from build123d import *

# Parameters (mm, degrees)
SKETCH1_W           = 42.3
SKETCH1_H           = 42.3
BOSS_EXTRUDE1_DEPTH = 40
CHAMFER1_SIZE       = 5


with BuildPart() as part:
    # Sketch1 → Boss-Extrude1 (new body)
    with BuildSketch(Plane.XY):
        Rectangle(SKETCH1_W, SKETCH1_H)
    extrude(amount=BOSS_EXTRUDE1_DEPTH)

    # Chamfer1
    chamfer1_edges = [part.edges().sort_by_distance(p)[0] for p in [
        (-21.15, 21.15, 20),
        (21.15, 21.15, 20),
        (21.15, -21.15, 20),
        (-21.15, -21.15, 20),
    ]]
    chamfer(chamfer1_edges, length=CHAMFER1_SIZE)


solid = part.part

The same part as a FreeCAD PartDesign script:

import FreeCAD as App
import Part
import Sketcher
from FreeCAD import Vector
Q = App.Units.Quantity


def edges_at(feature, points):
    """Names of the edges that pass closest to the given points."""
    edges = feature.Shape.Edges
    near = lambda p: min(range(len(edges)), key=lambda i: edges[i].distToShape(Part.Vertex(*p))[0])
    return sorted({f"Edge{near(p) + 1}" for p in points})


def add_polygon(sketch, points):
    """Adds a closed chain of lines whose ends are joined by coincident constraints."""
    first, n = sketch.GeometryCount, len(points)
    for a, b in zip(points, points[1:] + points[:1]):
        sketch.addGeometry(Part.LineSegment(App.Vector(*a, 0), App.Vector(*b, 0)), False)
    for i in range(n):
        sketch.addConstraint(Sketcher.Constraint("Coincident", first + i, 2, first + (i + 1) % n, 1))

doc = App.newDocument("Part")
body = doc.addObject("PartDesign::Body", "Body")

# Sketch on XY plane
sketch1 = doc.addObject("Sketcher::SketchObject", "Sketch")
body.addObject(sketch1)
sketch1.AttachmentSupport = (doc.XY_Plane, [""])
sketch1.MapMode = "FlatFace"
add_polygon(sketch1, [(-21.15, 21.15), (-21.15, -21.15), (21.15, -21.15), (21.15, 21.15)])  # lines 0-3
sketch1.addConstraint([
    Sketcher.Constraint("Vertical", 0),
    Sketcher.Constraint("Horizontal", 1),
    Sketcher.Constraint("Vertical", 2),
    Sketcher.Constraint("Horizontal", 3),
    Sketcher.Constraint("Symmetric", 0, 2, 2, 2, -1, 1),
    Sketcher.Constraint("Equal", 3, 0),
    Sketcher.Constraint("DistanceX", 1, 1, 1, 2, Q("42.3 mm")),
])
pad1 = doc.addObject("PartDesign::Pad", "Pad")
body.addObject(pad1)
pad1.Profile = sketch1
pad1.Length = 40
doc.recompute()

chamfer = doc.addObject("PartDesign::Chamfer", "Chamfer")
body.addObject(chamfer)
chamfer.Base = (pad1, edges_at(pad1, [
    (-21.15, 21.15, 20),
    (21.15, 21.15, 20),
    (21.15, -21.15, 20),
    (-21.15, -21.15, 20),
]))
chamfer.Size = 5

doc.recompute()
